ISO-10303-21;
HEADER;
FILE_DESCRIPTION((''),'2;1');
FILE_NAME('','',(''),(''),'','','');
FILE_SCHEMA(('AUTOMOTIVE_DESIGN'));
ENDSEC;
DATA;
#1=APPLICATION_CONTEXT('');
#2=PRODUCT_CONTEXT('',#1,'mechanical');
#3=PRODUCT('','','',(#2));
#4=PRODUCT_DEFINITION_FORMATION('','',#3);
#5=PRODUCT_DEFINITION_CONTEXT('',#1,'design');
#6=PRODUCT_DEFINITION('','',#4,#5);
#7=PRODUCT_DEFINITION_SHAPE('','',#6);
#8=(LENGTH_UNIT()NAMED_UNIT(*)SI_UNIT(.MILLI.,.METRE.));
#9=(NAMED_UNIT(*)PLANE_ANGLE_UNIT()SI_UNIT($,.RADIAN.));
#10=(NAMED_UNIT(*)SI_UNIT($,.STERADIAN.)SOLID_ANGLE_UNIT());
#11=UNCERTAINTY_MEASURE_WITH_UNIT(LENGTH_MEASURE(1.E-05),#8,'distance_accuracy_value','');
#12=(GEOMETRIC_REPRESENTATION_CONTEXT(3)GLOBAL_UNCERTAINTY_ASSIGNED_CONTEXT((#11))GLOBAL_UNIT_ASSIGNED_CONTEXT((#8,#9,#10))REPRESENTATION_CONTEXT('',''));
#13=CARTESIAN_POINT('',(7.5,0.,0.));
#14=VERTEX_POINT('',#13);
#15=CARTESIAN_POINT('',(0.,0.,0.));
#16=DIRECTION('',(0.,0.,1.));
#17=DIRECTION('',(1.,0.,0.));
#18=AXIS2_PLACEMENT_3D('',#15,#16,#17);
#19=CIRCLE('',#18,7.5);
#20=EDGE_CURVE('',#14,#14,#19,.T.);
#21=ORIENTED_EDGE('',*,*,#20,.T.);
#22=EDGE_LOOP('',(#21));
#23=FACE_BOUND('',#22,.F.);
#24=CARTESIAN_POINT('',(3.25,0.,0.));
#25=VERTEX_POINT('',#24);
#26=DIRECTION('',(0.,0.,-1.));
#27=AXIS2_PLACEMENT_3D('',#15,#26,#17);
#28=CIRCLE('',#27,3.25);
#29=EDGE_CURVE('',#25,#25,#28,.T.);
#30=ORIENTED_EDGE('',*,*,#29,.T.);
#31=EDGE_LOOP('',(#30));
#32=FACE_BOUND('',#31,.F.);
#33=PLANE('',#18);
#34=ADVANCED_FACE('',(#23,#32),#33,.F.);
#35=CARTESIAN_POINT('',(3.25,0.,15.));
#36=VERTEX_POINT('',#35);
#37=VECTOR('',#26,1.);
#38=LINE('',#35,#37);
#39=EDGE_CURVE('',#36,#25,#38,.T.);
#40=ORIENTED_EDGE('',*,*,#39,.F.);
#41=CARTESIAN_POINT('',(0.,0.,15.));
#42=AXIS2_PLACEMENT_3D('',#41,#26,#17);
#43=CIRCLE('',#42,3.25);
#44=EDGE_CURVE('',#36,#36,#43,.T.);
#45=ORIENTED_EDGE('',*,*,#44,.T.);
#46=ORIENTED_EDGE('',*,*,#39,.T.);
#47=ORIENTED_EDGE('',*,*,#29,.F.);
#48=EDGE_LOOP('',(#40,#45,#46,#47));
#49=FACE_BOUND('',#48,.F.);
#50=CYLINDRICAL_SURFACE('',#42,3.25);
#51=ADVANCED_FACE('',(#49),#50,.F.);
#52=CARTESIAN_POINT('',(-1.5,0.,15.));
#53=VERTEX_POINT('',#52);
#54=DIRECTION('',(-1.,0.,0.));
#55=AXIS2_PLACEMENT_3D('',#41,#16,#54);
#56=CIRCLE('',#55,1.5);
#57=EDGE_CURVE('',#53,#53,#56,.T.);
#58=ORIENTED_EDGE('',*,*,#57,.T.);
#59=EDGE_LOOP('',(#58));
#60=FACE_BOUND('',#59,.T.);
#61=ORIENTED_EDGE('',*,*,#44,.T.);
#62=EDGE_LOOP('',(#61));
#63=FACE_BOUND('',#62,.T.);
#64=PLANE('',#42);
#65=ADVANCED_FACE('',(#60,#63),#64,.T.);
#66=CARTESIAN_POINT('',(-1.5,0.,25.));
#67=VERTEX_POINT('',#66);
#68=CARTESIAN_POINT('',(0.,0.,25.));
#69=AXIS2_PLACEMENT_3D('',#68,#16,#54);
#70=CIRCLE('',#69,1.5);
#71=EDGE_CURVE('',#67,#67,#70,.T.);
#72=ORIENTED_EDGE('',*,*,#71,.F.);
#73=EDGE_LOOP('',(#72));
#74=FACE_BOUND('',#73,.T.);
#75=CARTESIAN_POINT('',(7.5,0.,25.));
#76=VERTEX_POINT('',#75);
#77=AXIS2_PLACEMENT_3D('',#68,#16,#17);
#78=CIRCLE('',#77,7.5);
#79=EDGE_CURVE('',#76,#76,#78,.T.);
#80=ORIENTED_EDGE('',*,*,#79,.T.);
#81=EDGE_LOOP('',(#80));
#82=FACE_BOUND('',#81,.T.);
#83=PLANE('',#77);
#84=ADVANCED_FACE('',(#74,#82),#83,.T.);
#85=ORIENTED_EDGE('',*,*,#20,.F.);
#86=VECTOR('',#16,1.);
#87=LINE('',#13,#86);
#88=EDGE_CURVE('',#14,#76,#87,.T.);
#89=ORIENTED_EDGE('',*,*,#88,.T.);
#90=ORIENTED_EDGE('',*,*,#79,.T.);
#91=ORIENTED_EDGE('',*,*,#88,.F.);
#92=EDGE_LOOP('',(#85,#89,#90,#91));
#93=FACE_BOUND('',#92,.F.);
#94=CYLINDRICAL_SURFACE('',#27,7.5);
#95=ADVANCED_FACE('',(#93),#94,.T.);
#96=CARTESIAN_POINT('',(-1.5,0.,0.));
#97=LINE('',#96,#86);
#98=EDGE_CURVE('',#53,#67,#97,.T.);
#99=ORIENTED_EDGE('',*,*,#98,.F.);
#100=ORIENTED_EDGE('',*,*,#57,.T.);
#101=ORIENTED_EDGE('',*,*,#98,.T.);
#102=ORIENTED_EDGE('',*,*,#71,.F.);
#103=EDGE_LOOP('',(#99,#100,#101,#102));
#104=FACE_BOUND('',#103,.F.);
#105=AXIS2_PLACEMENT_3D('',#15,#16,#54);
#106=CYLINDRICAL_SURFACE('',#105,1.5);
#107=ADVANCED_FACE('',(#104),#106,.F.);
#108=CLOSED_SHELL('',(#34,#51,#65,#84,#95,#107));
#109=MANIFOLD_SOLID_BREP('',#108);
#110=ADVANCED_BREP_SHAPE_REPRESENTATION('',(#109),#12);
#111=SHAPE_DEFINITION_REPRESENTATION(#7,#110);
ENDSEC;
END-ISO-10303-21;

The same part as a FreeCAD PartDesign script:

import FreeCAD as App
import Part
import Sketcher

V = App.Vector

doc = App.newDocument("Part")
params = doc.addObject("Spreadsheet::Sheet", "Params")
for row, (alias, value) in enumerate([
    ("sketch1_diameter", "15 mm"),
    ("pad1_length", "25 mm"),
    ("sketch2_diameter", "3 mm"),
    ("hole_diameter", "3 mm"),
    ("hole_cbore_diameter", "6.5 mm"),
    ("hole_cbore_depth", "15 mm"),
], start=1):
    params.set(f"A{row}", alias)
    params.set(f"B{row}", "=" + value)
    params.setAlias(f"B{row}", alias)

body = doc.addObject("PartDesign::Body", "Body")

sketch1 = doc.addObject("Sketcher::SketchObject", "Sketch")
body.addObject(sketch1)
sketch1.AttachmentSupport = (doc.XY_Plane, [""])
sketch1.MapMode = "FlatFace"
sketch1.addGeometry(Part.Circle(V(0, 0, 0), V(0, 0, 1), 8), False)
sketch1.addConstraint(Sketcher.Constraint("Coincident", 0, 3, -1, 1))
sketch1.addConstraint(Sketcher.Constraint("Diameter", 0, 15.0))
sketch1.setExpression("Constraints[1]", "Params.sketch1_diameter")
pad1 = doc.addObject("PartDesign::Pad", "Pad")
body.addObject(pad1)
pad1.Profile = sketch1
pad1.setExpression("Length", "Params.pad1_length")

sketch2 = doc.addObject("Sketcher::SketchObject", "Sketch001")
body.addObject(sketch2)
sketch2.AttachmentSupport = (doc.XY_Plane, [""])
sketch2.MapMode = "FlatFace"
sketch2.addGeometry(Part.Circle(V(0, 0, 0), V(0, 0, 1), 1.5), False)
sketch2.addConstraint(Sketcher.Constraint("Coincident", 0, 3, -1, 1))
sketch2.addConstraint(Sketcher.Constraint("Diameter", 0, 3.0))
sketch2.setExpression("Constraints[1]", "Params.sketch2_diameter")
doc.recompute()
hole = doc.addObject("PartDesign::Hole", "Hole")
body.addObject(hole)
hole.Profile = sketch2
hole.ThreadType = "None"
hole.setExpression("Diameter", "Params.hole_diameter")
hole.DepthType = "ThroughAll"
hole.HoleCutType = "Counterbore"
hole.setExpression("HoleCutDiameter", "Params.hole_cbore_diameter")
hole.setExpression("HoleCutDepth", "Params.hole_cbore_depth")
hole.Reversed = True

doc.recompute()
